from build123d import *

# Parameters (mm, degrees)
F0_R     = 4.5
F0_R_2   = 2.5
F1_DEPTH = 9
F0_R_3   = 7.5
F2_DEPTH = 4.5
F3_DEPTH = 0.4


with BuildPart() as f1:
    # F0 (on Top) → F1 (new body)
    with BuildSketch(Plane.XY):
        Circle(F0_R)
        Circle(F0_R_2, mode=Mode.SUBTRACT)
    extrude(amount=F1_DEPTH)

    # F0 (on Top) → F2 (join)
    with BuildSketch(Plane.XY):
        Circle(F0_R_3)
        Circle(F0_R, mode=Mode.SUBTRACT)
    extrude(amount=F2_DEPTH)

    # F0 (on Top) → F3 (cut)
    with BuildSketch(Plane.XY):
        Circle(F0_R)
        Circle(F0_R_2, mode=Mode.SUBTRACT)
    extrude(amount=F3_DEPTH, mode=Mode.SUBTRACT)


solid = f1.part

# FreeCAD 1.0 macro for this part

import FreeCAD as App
import Part
import Sketcher
from FreeCAD import Vector
Q = App.Units.Quantity

doc = App.newDocument("Part")
body = doc.addObject("PartDesign::Body", "Body")

sketch1 = body.newObject("Sketcher::SketchObject", "Sketch")
sketch1.AttachmentSupport = (doc.getObject("XY_Plane"), [""])
sketch1.MapMode = "FlatFace"
sketch1.addGeometry(Part.Circle(Vector(0, 0, 0), Vector(0, 0, 1), 4.5), False)
sketch1.addGeometry(Part.Circle(Vector(0, 0, 0), Vector(0, 0, 1), 2.5), False)
sketch1.addConstraint(Sketcher.Constraint("Coincident", 0, 3, -1, 1))
sketch1.addConstraint(Sketcher.Constraint("Coincident", 1, 3, -1, 1))
sketch1.addConstraint(Sketcher.Constraint("Diameter", 0, Q("9 mm")))
sketch1.addConstraint(Sketcher.Constraint("Diameter", 1, Q("5 mm")))
pad1 = body.newObject("PartDesign::Pad", "Pad")
pad1.Profile = sketch1
pad1.Length = 9

sketch2 = body.newObject("Sketcher::SketchObject", "Sketch001")
sketch2.AttachmentSupport = (doc.getObject("XY_Plane"), [""])
sketch2.MapMode = "FlatFace"
sketch2.addGeometry(Part.Circle(Vector(0, 0, 0), Vector(0, 0, 1), 7.5), False)
sketch2.addGeometry(Part.Circle(Vector(0, 0, 0), Vector(0, 0, 1), 4.5), False)
sketch2.addConstraint(Sketcher.Constraint("Coincident", 0, 3, -1, 1))
sketch2.addConstraint(Sketcher.Constraint("Coincident", 1, 3, -1, 1))
sketch2.addConstraint(Sketcher.Constraint("Diameter", 0, Q("15 mm")))
sketch2.addConstraint(Sketcher.Constraint("Diameter", 1, Q("9 mm")))
pad2 = body.newObject("PartDesign::Pad", "Pad001")
pad2.Profile = sketch2
pad2.Length = 4.5

sketch3 = body.newObject("Sketcher::SketchObject", "Sketch002")
sketch3.AttachmentSupport = (doc.getObject("XY_Plane"), [""])
sketch3.MapMode = "FlatFace"
sketch3.addGeometry(Part.Circle(Vector(0, 0, 0), Vector(0, 0, 1), 4.5), False)
sketch3.addGeometry(Part.Circle(Vector(0, 0, 0), Vector(0, 0, 1), 2.5), False)
sketch3.addConstraint(Sketcher.Constraint("Coincident", 0, 3, -1, 1))
sketch3.addConstraint(Sketcher.Constraint("Coincident", 1, 3, -1, 1))
sketch3.addConstraint(Sketcher.Constraint("Diameter", 0, Q("9 mm")))
sketch3.addConstraint(Sketcher.Constraint("Diameter", 1, Q("5 mm")))
pocket1 = body.newObject("PartDesign::Pocket", "Pocket")
pocket1.Profile = sketch3
pocket1.Length = 0.4
pocket1.Reversed = True

doc.recompute()
